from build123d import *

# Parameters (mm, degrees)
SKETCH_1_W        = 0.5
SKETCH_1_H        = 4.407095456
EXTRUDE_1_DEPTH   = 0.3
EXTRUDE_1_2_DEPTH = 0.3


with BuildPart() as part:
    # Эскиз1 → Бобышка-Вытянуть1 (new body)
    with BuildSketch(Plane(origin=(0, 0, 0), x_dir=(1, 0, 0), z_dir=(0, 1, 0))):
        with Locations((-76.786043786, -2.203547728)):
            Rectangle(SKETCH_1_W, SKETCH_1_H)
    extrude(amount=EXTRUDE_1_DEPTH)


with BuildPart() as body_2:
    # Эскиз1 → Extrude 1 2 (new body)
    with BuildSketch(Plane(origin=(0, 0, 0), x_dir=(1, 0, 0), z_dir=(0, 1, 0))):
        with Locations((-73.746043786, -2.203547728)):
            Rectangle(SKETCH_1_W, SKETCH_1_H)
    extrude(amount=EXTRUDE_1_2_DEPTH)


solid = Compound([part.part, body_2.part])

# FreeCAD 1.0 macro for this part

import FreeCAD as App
import Part
import Sketcher
Q = App.Units.Quantity


def add_polygon(sketch, points):
    """Adds a closed chain of lines whose ends are joined by coincident constraints."""
    first, n = sketch.GeometryCount, len(points)
    for a, b in zip(points, points[1:] + points[:1]):
        sketch.addGeometry(Part.LineSegment(App.Vector(*a, 0), App.Vector(*b, 0)), False)
    for i in range(n):
        sketch.addConstraint(Sketcher.Constraint("Coincident", first + i, 2, first + (i + 1) % n, 1))

doc = App.newDocument("Part")
body = doc.addObject("PartDesign::Body", "Body")

sketch1 = body.newObject("Sketcher::SketchObject", "Sketch")
sketch1.AttachmentSupport = (doc.getObject("XZ_Plane"), [""])
sketch1.MapMode = "FlatFace"
add_polygon(sketch1, [(-77, 0), (-77, 4.4), (-76.5, 4.4), (-76.5, 0)])
sketch1.addConstraint(Sketcher.Constraint("Vertical", 0))
sketch1.addConstraint(Sketcher.Constraint("Horizontal", 1))
sketch1.addConstraint(Sketcher.Constraint("Vertical", 2))
sketch1.addConstraint(Sketcher.Constraint("Horizontal", 3))
sketch1.addConstraint(Sketcher.Constraint("PointOnObject", 2, 2, -1))
sketch1.addConstraint(Sketcher.Constraint("DistanceX", 1, 1, 1, 2, Q("0.5 mm")))
sketch1.addConstraint(Sketcher.Constraint("DistanceY", 0, 1, 0, 2, Q("4.407095 mm")))
sketch1.addConstraint(Sketcher.Constraint("DistanceX", 0, 2, -1, 1, Q("77.036044 mm")))
pad1 = body.newObject("PartDesign::Pad", "Pad")
pad1.Profile = sketch1
pad1.Length = 0.3
pad1.Reversed = True
body2 = doc.addObject("PartDesign::Body", "Body001")

sketch2 = body2.newObject("Sketcher::SketchObject", "Sketch001")
sketch2.AttachmentSupport = (doc.getObject("XZ_Plane001"), [""])
sketch2.MapMode = "FlatFace"
add_polygon(sketch2, [(-74, 0), (-74, 4.4), (-73.5, 4.4), (-73.5, 0)])
sketch2.addConstraint(Sketcher.Constraint("Vertical", 0))
sketch2.addConstraint(Sketcher.Constraint("Horizontal", 1))
sketch2.addConstraint(Sketcher.Constraint("Vertical", 2))
sketch2.addConstraint(Sketcher.Constraint("Horizontal", 3))
sketch2.addConstraint(Sketcher.Constraint("PointOnObject", 2, 2, -1))
sketch2.addConstraint(Sketcher.Constraint("DistanceX", 1, 1, 1, 2, Q("0.5 mm")))
sketch2.addConstraint(Sketcher.Constraint("DistanceY", 0, 1, 0, 2, Q("4.407095 mm")))
sketch2.addConstraint(Sketcher.Constraint("DistanceX", 0, 2, -1, 1, Q("73.996044 mm")))
pad2 = body2.newObject("PartDesign::Pad", "Pad001")
pad2.Profile = sketch2
pad2.Length = 0.3
pad2.Reversed = True

doc.recompute()
